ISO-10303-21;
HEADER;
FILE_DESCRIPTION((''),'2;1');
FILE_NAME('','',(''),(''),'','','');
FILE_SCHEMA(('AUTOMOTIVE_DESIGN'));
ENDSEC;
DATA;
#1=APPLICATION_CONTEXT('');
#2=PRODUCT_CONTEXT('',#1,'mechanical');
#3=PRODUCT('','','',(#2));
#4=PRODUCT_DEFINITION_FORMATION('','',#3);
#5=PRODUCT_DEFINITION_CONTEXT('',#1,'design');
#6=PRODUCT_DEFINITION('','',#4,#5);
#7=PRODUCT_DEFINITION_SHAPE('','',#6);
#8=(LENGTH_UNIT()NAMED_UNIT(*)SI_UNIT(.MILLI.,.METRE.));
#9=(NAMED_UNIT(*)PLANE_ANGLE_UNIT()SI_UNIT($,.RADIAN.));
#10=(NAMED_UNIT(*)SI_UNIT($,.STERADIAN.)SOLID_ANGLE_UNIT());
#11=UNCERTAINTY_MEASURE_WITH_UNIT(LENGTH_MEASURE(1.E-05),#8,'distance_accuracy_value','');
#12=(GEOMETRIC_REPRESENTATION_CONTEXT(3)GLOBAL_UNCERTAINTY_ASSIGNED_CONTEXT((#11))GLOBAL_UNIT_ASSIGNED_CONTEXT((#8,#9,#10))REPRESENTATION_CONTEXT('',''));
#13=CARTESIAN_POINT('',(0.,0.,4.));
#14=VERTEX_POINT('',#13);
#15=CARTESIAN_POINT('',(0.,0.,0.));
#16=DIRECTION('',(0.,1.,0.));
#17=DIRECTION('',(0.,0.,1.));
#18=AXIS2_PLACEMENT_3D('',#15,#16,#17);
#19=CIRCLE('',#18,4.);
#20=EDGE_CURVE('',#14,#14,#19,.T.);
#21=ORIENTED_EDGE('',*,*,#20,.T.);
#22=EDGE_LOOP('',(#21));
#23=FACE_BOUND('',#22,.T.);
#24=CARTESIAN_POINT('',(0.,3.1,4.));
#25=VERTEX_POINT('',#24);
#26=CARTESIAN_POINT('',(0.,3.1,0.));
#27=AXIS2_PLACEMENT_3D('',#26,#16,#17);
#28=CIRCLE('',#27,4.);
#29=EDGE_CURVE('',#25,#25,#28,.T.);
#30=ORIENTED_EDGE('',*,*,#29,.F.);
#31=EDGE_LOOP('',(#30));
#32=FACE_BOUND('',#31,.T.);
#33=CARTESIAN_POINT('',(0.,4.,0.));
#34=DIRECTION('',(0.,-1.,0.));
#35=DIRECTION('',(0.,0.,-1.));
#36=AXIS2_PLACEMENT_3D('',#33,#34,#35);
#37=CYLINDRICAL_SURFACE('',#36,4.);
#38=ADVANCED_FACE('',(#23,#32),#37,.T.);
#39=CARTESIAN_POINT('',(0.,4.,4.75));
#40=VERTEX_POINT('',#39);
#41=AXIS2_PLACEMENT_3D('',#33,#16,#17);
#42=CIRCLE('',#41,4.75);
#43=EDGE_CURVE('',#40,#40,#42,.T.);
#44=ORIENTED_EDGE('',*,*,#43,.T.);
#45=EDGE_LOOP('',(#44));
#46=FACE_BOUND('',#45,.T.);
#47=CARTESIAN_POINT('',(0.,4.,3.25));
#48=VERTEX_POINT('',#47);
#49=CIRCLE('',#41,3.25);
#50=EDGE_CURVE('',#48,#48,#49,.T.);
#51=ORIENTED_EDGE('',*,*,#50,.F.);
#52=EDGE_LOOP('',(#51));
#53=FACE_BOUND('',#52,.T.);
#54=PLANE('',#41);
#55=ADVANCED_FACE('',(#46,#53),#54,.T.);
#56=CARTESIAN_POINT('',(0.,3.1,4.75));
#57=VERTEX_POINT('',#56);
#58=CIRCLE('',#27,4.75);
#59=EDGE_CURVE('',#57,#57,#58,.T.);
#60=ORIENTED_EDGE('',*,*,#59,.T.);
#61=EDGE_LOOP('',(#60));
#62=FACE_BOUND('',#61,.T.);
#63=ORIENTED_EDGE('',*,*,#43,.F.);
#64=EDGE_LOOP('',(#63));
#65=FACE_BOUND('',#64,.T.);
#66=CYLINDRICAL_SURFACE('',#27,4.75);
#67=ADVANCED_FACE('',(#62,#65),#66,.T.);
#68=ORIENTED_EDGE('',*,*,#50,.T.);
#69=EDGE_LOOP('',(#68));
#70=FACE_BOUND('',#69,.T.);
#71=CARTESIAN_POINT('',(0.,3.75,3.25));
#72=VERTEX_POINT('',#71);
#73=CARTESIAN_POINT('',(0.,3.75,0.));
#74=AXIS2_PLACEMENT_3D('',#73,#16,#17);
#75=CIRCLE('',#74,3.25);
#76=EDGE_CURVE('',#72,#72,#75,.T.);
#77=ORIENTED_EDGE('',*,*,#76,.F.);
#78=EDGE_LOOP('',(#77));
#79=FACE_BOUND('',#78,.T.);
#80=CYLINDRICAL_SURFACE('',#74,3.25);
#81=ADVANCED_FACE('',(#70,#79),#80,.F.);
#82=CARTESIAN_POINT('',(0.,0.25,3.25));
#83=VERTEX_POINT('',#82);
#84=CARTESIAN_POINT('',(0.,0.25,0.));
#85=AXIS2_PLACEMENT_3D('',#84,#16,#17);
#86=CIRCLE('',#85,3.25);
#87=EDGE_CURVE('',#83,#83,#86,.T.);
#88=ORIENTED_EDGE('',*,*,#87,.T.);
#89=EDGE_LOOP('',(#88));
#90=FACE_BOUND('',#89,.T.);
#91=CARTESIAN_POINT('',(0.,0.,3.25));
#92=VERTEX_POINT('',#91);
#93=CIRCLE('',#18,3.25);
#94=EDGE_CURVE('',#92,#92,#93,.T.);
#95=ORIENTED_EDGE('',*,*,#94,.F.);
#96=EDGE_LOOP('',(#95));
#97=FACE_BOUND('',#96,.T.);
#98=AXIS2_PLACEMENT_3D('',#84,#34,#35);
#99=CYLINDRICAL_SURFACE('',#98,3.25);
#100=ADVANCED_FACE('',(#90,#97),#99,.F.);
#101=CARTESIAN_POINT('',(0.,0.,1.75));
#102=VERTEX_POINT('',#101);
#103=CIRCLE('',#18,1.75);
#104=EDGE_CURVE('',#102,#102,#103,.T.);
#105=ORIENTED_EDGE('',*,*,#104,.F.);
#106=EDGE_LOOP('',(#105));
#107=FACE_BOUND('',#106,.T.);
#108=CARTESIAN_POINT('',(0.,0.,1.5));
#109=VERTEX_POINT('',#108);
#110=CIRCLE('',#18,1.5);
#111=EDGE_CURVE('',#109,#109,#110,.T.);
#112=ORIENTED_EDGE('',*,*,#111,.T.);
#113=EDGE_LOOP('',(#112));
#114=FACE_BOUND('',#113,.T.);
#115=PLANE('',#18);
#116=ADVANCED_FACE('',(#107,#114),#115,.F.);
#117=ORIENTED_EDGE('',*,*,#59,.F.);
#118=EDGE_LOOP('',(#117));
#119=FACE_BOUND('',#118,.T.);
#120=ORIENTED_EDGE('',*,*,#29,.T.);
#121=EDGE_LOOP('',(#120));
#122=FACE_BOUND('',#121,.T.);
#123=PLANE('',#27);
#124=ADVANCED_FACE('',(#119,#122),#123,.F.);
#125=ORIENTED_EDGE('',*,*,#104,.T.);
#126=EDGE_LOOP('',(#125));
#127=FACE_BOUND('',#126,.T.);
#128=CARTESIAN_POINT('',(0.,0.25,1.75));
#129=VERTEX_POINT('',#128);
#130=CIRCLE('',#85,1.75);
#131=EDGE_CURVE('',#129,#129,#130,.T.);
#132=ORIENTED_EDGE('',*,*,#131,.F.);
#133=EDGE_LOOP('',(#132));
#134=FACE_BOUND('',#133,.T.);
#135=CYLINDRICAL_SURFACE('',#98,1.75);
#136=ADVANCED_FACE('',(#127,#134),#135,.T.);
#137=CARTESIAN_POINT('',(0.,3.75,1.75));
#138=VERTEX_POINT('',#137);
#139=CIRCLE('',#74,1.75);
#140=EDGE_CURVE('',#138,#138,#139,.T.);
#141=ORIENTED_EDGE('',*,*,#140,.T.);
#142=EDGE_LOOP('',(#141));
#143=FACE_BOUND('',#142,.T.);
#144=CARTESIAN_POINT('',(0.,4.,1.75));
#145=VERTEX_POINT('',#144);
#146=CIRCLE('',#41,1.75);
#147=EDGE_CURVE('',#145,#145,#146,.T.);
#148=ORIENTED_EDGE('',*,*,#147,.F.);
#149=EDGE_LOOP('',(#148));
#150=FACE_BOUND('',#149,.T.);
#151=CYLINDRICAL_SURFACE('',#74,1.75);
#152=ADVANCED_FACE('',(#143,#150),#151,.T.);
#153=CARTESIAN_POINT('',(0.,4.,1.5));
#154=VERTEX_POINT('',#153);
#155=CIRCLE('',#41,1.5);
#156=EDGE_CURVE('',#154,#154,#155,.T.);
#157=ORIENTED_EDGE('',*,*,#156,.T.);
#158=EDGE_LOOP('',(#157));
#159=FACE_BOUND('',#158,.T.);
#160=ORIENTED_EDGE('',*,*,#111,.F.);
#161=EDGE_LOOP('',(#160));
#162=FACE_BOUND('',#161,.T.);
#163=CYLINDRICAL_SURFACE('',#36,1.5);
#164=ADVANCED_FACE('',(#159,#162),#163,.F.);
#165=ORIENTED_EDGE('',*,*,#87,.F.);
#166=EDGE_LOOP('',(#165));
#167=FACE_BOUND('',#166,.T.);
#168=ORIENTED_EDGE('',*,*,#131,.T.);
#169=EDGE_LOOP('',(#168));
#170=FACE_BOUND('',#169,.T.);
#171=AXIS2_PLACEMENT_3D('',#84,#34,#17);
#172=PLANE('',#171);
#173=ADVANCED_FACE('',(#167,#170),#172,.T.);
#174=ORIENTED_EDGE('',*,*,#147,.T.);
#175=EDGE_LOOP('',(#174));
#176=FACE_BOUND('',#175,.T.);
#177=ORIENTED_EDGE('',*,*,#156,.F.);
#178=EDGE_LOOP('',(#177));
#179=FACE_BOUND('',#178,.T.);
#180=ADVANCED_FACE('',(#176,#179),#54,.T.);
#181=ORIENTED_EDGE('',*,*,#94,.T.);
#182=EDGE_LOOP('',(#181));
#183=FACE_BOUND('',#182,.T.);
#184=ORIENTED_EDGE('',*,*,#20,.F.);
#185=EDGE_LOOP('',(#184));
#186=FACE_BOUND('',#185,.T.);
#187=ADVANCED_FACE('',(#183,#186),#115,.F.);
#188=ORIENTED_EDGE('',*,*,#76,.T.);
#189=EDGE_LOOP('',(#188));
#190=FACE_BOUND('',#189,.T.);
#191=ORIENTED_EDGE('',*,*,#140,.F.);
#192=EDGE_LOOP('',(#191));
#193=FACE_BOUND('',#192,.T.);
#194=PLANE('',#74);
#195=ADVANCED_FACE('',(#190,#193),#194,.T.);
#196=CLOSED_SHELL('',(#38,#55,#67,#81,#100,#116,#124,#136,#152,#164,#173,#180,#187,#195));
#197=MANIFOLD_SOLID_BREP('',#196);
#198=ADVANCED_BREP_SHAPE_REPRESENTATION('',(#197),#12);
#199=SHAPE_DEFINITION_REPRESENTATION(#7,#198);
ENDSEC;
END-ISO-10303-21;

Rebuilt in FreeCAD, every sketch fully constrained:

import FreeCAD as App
import Part
import Sketcher

doc = App.newDocument("Part")
params = doc.addObject("Spreadsheet::Sheet", "Params")
for row, (alias, value) in enumerate([
    ("sketch1_diameter", "8 mm"),
    ("sketch1_diameter2", "3 mm"),
    ("pad1_length", "4 mm"),
    ("sketch2_diameter", "6.5 mm"),
    ("sketch2_diameter2", "3.5 mm"),
    ("pocket1_length", "0.25 mm"),
    ("sketch3_diameter", "8 mm"),
    ("sketch3_diameter2", "9.5 mm"),
    ("pad2_length", "0.9 mm"),
], start=1):
    params.set(f"A{row}", alias)
    params.set(f"B{row}", "=" + value)
    params.setAlias(f"B{row}", alias)

body = doc.addObject("PartDesign::Body", "Body")

# Sketch on XZ plane
sketch1 = body.newObject("Sketcher::SketchObject", "Sketch")
sketch1.AttachmentSupport = (doc.getObject("XZ_Plane"), [""])
sketch1.MapMode = "FlatFace"
sketch1.addGeometry(Part.Circle(App.Vector(0, 0, 0), App.Vector(0, 0, 1), 4), False)
sketch1.addGeometry(Part.Circle(App.Vector(0, 0, 0), App.Vector(0, 0, 1), 1.5), False)
sketch1.addConstraint(Sketcher.Constraint("Coincident", 0, 3, -1, 1))
sketch1.addConstraint(Sketcher.Constraint("Coincident", 1, 3, -1, 1))
sketch1.addConstraint(Sketcher.Constraint("Diameter", 0, 8.0))
sketch1.addConstraint(Sketcher.Constraint("Diameter", 1, 3.0))
sketch1.setExpression("Constraints[2]", "Params.sketch1_diameter")
sketch1.setExpression("Constraints[3]", "Params.sketch1_diameter2")
pad1 = body.newObject("PartDesign::Pad", "Pad")
pad1.Profile = sketch1
pad1.setExpression("Length", "Params.pad1_length")
pad1.Reversed = True

# Sketch on XZ plane
sketch2 = body.newObject("Sketcher::SketchObject", "Sketch001")
sketch2.AttachmentSupport = (doc.getObject("XZ_Plane"), [""])
sketch2.MapMode = "FlatFace"
sketch2.AttachmentOffset = App.Placement(App.Vector(0, 0, -4), App.Rotation())
sketch2.addGeometry(Part.Circle(App.Vector(0, 0, 0), App.Vector(0, 0, 1), 3.2), False)
sketch2.addGeometry(Part.Circle(App.Vector(0, 0, 0), App.Vector(0, 0, 1), 1.8), False)
sketch2.addConstraint(Sketcher.Constraint("Coincident", 0, 3, -1, 1))
sketch2.addConstraint(Sketcher.Constraint("Coincident", 1, 3, -1, 1))
sketch2.addConstraint(Sketcher.Constraint("Diameter", 0, 6.5))
sketch2.addConstraint(Sketcher.Constraint("Diameter", 1, 3.5))
sketch2.setExpression("Constraints[2]", "Params.sketch2_diameter")
sketch2.setExpression("Constraints[3]", "Params.sketch2_diameter2")
pocket1 = body.newObject("PartDesign::Pocket", "Pocket")
pocket1.Profile = sketch2
pocket1.setExpression("Length", "Params.pocket1_length")
pocket1.Reversed = True
doc.recompute()

datumplane = body.newObject("PartDesign::Plane", "DatumPlane")
datumplane.AttachmentSupport = (doc.getObject("XZ_Plane"), [""])
datumplane.MapMode = "FlatFace"
datumplane.AttachmentOffset = App.Placement(App.Vector(0, 0, -2), App.Rotation())
mirrored = body.newObject("PartDesign::Mirrored", "Mirrored")
mirrored.Originals = [pocket1]
mirrored.MirrorPlane = (datumplane, [""])
body.Tip = mirrored

# Sketch on XZ plane
sketch3 = body.newObject("Sketcher::SketchObject", "Sketch002")
sketch3.AttachmentSupport = (doc.getObject("XZ_Plane"), [""])
sketch3.MapMode = "FlatFace"
sketch3.AttachmentOffset = App.Placement(App.Vector(0, 0, -3.1), App.Rotation())
sketch3.addGeometry(Part.Circle(App.Vector(0, 0, 0), App.Vector(0, 0, 1), 4.8), False)
sketch3.addGeometry(Part.Circle(App.Vector(0, 0, 0), App.Vector(0, 0, 1), 4), False)
sketch3.addConstraint(Sketcher.Constraint("Coincident", 0, 3, -1, 1))
sketch3.addConstraint(Sketcher.Constraint("Coincident", 1, 3, -1, 1))
sketch3.addConstraint(Sketcher.Constraint("Diameter", 1, 8.0))
sketch3.addConstraint(Sketcher.Constraint("Diameter", 0, 9.5))
sketch3.setExpression("Constraints[2]", "Params.sketch3_diameter")
sketch3.setExpression("Constraints[3]", "Params.sketch3_diameter2")
pad2 = body.newObject("PartDesign::Pad", "Pad001")
pad2.Profile = sketch3
pad2.setExpression("Length", "Params.pad2_length")
pad2.Reversed = True

doc.recompute()
